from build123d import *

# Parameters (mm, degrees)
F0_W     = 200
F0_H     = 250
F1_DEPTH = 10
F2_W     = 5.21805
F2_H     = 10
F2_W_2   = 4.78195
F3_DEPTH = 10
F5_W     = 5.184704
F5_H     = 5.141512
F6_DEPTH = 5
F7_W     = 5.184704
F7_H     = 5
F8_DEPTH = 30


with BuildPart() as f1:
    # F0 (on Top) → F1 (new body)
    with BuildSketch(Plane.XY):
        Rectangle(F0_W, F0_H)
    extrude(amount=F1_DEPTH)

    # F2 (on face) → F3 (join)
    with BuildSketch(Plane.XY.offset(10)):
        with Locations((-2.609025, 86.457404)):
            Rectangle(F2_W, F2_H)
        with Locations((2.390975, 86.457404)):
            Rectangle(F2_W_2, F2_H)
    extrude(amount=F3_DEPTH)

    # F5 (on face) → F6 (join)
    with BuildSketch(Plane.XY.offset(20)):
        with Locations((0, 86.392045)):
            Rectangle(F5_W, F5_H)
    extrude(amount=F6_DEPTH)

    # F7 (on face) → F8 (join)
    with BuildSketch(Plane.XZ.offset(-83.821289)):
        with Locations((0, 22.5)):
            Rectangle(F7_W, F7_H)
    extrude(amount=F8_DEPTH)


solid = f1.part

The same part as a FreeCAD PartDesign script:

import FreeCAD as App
import Part
import Sketcher
from FreeCAD import Vector
Q = App.Units.Quantity


def add_polygon(sketch, points):
    """Adds a closed chain of lines whose ends are joined by coincident constraints."""
    first, n = sketch.GeometryCount, len(points)
    for a, b in zip(points, points[1:] + points[:1]):
        sketch.addGeometry(Part.LineSegment(App.Vector(*a, 0), App.Vector(*b, 0)), False)
    for i in range(n):
        sketch.addConstraint(Sketcher.Constraint("Coincident", first + i, 2, first + (i + 1) % n, 1))

doc = App.newDocument("Part")
params = doc.addObject("Spreadsheet::Sheet", "Params")
for row, (alias, value) in enumerate([
    ("sketch1_width", "200 mm"),
    ("sketch1_height", "250 mm"),
    ("pad1_length", "10 mm"),
    ("sketch2_width", "10 mm"),
    ("pad2_length", "10 mm"),
    ("pad3_length", "5 mm"),
    ("sketch4_height", "5 mm"),
    ("pad4_length", "30 mm"),
], start=1):
    params.set(f"A{row}", alias)
    params.set(f"B{row}", "=" + value)
    params.setAlias(f"B{row}", alias)

body = doc.addObject("PartDesign::Body", "Body")

# Sketch on XY plane
sketch1 = doc.addObject("Sketcher::SketchObject", "Sketch")
body.addObject(sketch1)
sketch1.AttachmentSupport = (doc.XY_Plane, [""])
sketch1.MapMode = "FlatFace"
add_polygon(sketch1, [(-100, 125), (-100, -125), (100, -125), (100, 125)])  # lines 0-3
sketch1.addConstraint(Sketcher.Constraint("Vertical", 0))
sketch1.addConstraint(Sketcher.Constraint("Horizontal", 1))
sketch1.addConstraint(Sketcher.Constraint("Vertical", 2))
sketch1.addConstraint(Sketcher.Constraint("Horizontal", 3))
sketch1.addConstraint(Sketcher.Constraint("Symmetric", 0, 2, 2, 2, -1, 1))
sketch1.addConstraint(Sketcher.Constraint("DistanceX", 1, 1, 1, 2, Q("200 mm")))
sketch1.addConstraint(Sketcher.Constraint("DistanceY", 0, 2, 0, 1, Q("250 mm")))
sketch1.setExpression("Constraints[9]", "Params.sketch1_width")
sketch1.setExpression("Constraints[10]", "Params.sketch1_height")
pad1 = doc.addObject("PartDesign::Pad", "Pad")
body.addObject(pad1)
pad1.Profile = sketch1
pad1.setExpression("Length", "Params.pad1_length")

# Sketch on XY plane
sketch2 = doc.addObject("Sketcher::SketchObject", "Sketch001")
body.addObject(sketch2)
sketch2.AttachmentSupport = (doc.XY_Plane, [""])
sketch2.MapMode = "FlatFace"
sketch2.AttachmentOffset = App.Placement(Vector(0, 0, 10), App.Rotation())
add_polygon(sketch2, [(-5, 91), (-5, 81), (5, 81), (5, 91)])  # lines 0-3
sketch2.addConstraint(Sketcher.Constraint("Vertical", 0))
sketch2.addConstraint(Sketcher.Constraint("Horizontal", 1))
sketch2.addConstraint(Sketcher.Constraint("Vertical", 2))
sketch2.addConstraint(Sketcher.Constraint("Horizontal", 3))
sketch2.addConstraint(Sketcher.Constraint("Equal", 3, 0))
sketch2.addConstraint(Sketcher.Constraint("DistanceX", 1, 1, 1, 2, Q("10 mm")))
sketch2.addConstraint(Sketcher.Constraint("DistanceX", 0, 2, -1, 1, Q("5.21805 mm")))
sketch2.addConstraint(Sketcher.Constraint("DistanceY", -1, 1, 0, 2, Q("81.457404 mm")))
sketch2.setExpression("Constraints[9]", "Params.sketch2_width")
pad2 = doc.addObject("PartDesign::Pad", "Pad001")
body.addObject(pad2)
pad2.Profile = sketch2
pad2.setExpression("Length", "Params.pad2_length")

# Sketch on XY plane
sketch3 = doc.addObject("Sketcher::SketchObject", "Sketch002")
body.addObject(sketch3)
sketch3.AttachmentSupport = (doc.XY_Plane, [""])
sketch3.MapMode = "FlatFace"
sketch3.AttachmentOffset = App.Placement(Vector(0, 0, 20), App.Rotation())
add_polygon(sketch3, [(-3, 89), (-3, 84), (3, 84), (3, 89)])  # lines 0-3
sketch3.addConstraint(Sketcher.Constraint("Vertical", 0))
sketch3.addConstraint(Sketcher.Constraint("Horizontal", 1))
sketch3.addConstraint(Sketcher.Constraint("Vertical", 2))
sketch3.addConstraint(Sketcher.Constraint("Horizontal", 3))
sketch3.addConstraint(Sketcher.Constraint("DistanceY", -1, 1, 2, 2, Q("88.962801 mm")))
sketch3.addConstraint(Sketcher.Constraint("DistanceX", 1, 1, 1, 2, Q("5.184704 mm")))
sketch3.addConstraint(Sketcher.Constraint("DistanceY", 0, 2, 0, 1, Q("5.141512 mm")))
sketch3.addConstraint(Sketcher.Constraint("DistanceX", 0, 2, -1, 1, Q("2.592352 mm")))
pad3 = doc.addObject("PartDesign::Pad", "Pad002")
body.addObject(pad3)
pad3.Profile = sketch3
pad3.setExpression("Length", "Params.pad3_length")

# Sketch on XZ plane
sketch4 = doc.addObject("Sketcher::SketchObject", "Sketch003")
body.addObject(sketch4)
sketch4.AttachmentSupport = (doc.XZ_Plane, [""])
sketch4.MapMode = "FlatFace"
sketch4.AttachmentOffset = App.Placement(Vector(0, 0, -83.821289), App.Rotation())
add_polygon(sketch4, [(-3, 25), (-3, 20), (3, 20), (3, 25)])  # lines 0-3
sketch4.addConstraint(Sketcher.Constraint("Vertical", 0))
sketch4.addConstraint(Sketcher.Constraint("Horizontal", 1))
sketch4.addConstraint(Sketcher.Constraint("Vertical", 2))
sketch4.addConstraint(Sketcher.Constraint("Horizontal", 3))
sketch4.addConstraint(Sketcher.Constraint("DistanceY", 0, 2, 0, 1, Q("5 mm")))
sketch4.addConstraint(Sketcher.Constraint("DistanceY", -1, 1, 0, 2, Q("20 mm")))
sketch4.addConstraint(Sketcher.Constraint("DistanceX", 1, 1, 1, 2, Q("5.184704 mm")))
sketch4.addConstraint(Sketcher.Constraint("DistanceX", 0, 2, -1, 1, Q("2.592352 mm")))
sketch4.setExpression("Constraints[8]", "Params.sketch4_height")
pad4 = doc.addObject("PartDesign::Pad", "Pad003")
body.addObject(pad4)
pad4.Profile = sketch4
pad4.setExpression("Length", "Params.pad4_length")

doc.recompute()
